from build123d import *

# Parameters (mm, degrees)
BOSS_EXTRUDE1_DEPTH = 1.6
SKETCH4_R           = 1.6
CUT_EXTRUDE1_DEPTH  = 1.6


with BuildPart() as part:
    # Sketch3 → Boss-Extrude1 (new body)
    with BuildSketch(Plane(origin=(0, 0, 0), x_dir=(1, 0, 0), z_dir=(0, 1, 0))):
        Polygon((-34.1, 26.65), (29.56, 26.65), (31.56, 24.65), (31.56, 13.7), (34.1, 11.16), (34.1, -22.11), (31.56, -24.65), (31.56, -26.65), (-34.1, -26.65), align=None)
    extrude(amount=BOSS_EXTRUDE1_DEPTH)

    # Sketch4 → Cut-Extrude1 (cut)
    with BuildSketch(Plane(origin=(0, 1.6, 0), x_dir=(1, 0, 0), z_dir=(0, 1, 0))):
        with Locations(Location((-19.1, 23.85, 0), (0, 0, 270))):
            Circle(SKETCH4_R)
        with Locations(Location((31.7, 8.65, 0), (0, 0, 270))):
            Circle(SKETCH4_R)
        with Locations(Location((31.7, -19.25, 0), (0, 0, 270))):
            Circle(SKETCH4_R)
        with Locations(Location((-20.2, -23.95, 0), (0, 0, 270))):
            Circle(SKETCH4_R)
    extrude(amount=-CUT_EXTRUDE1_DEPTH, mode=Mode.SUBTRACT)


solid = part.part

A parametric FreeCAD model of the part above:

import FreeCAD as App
import Part
import Sketcher

V = App.Vector


def add_polygon(sketch, points):
    """Adds a closed chain of lines whose ends are joined by coincident constraints."""
    first, n = sketch.GeometryCount, len(points)
    for a, b in zip(points, points[1:] + points[:1]):
        sketch.addGeometry(Part.LineSegment(App.Vector(*a, 0), App.Vector(*b, 0)), False)
    for i in range(n):
        sketch.addConstraint(Sketcher.Constraint("Coincident", first + i, 2, first + (i + 1) % n, 1))

doc = App.newDocument("Part")
body = doc.addObject("PartDesign::Body", "Body")

sketch1 = doc.addObject("Sketcher::SketchObject", "Sketch")
body.addObject(sketch1)
sketch1.AttachmentSupport = (doc.XZ_Plane, [""])
sketch1.MapMode = "FlatFace"
add_polygon(sketch1, [(29.56, -26.65), (-34.1, -26.65), (-34.1, 26.65), (31.56, 26.65), (31.56, 24.65), (34.1, 22.11), (34.1, -11.16), (31.56, -13.7), (31.56, -24.65)])
sketch1.addConstraint([
    Sketcher.Constraint("Horizontal", 0),
    Sketcher.Constraint("Vertical", 1),
    Sketcher.Constraint("Horizontal", 2),
    Sketcher.Constraint("Vertical", 3),
    Sketcher.Constraint("Vertical", 5),
    Sketcher.Constraint("Vertical", 7),
    Sketcher.Constraint("Symmetric", 3, 2, 7, 2, -1),
    Sketcher.Constraint("Perpendicular", 4, 6),
    Sketcher.Constraint("Parallel", 6, 8),
    Sketcher.Constraint("Equal", 4, 6),
    Sketcher.Constraint("DistanceY", 3, 2, 3, 1, 2.0),
    Sketcher.Constraint("DistanceY", 1, 1, 1, 2, 53.3),
    Sketcher.Constraint("DistanceX", 8, 2, 7, 2, 2.0),
    Sketcher.Constraint("DistanceX", 0, 2, 0, 1, 63.66),
    Sketcher.Constraint("DistanceY", 5, 2, 5, 1, 33.27),
    Sketcher.Constraint("DistanceY", 7, 2, 7, 1, 10.95),
    Sketcher.Constraint("DistanceX", 0, 2, -1, 1, 34.1),
])
pad1 = doc.addObject("PartDesign::Pad", "Pad")
body.addObject(pad1)
pad1.Profile = sketch1
pad1.Length = 1.6
pad1.Reversed = True

sketch2 = doc.addObject("Sketcher::SketchObject", "Sketch001")
body.addObject(sketch2)
sketch2.AttachmentSupport = (doc.XZ_Plane, [""])
sketch2.MapMode = "FlatFace"
sketch2.AttachmentOffset = App.Placement(V(0, 0, -1.6), App.Rotation())
sketch2.addGeometry([
    Part.Circle(V(-19.1, -23.85, 0), V(0, 0, 1), 1.6),
    Part.Circle(V(31.7, -8.65, 0), V(0, 0, 1), 1.6),
    Part.Circle(V(31.7, 19.25, 0), V(0, 0, 1), 1.6),
    Part.Circle(V(-20.2, 23.95, 0), V(0, 0, 1), 1.6),
], False)
sketch2.addConstraint([
    Sketcher.Constraint("Equal", 0, 1),
    Sketcher.Constraint("Equal", 1, 2),
    Sketcher.Constraint("Equal", 2, 3),
    Sketcher.Constraint("Vertical", 1, 3, 2, 3),
    Sketcher.Constraint("Diameter", 0, 3.2),
    Sketcher.Constraint("DistanceX", 0, 3, -1, 1, 19.1),
    Sketcher.Constraint("DistanceX", -1, 1, 1, 3, 31.7),
    Sketcher.Constraint("DistanceX", 3, 3, -1, 1, 20.2),
    Sketcher.Constraint("DistanceY", 0, 3, 1, 3, 15.2),
    Sketcher.Constraint("DistanceY", 1, 3, 2, 3, 27.9),
    Sketcher.Constraint("DistanceY", 0, 3, 3, 3, 47.8),
    Sketcher.Constraint("DistanceY", 0, 3, -1, 1, 23.85),
])
pocket1 = doc.addObject("PartDesign::Pocket", "Pocket")
body.addObject(pocket1)
pocket1.Profile = sketch2
pocket1.Length = 1.6
pocket1.Reversed = True

doc.recompute()
